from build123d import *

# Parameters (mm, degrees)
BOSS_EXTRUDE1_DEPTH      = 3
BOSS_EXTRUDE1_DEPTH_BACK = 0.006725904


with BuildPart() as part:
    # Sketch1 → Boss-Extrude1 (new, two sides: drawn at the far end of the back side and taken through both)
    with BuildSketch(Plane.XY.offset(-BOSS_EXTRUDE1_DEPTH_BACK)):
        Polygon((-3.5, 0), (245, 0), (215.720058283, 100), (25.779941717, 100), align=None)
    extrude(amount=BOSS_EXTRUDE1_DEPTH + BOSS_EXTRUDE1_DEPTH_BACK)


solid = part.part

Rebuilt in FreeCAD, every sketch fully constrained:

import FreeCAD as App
import Part
import Sketcher
from FreeCAD import Vector
Q = App.Units.Quantity


def add_polygon(sketch, points):
    """Adds a closed chain of lines whose ends are joined by coincident constraints."""
    first, n = sketch.GeometryCount, len(points)
    for a, b in zip(points, points[1:] + points[:1]):
        sketch.addGeometry(Part.LineSegment(App.Vector(*a, 0), App.Vector(*b, 0)), False)
    for i in range(n):
        sketch.addConstraint(Sketcher.Constraint("Coincident", first + i, 2, first + (i + 1) % n, 1))

doc = App.newDocument("Part")
body = doc.addObject("PartDesign::Body", "Body")

sketch1 = body.newObject("Sketcher::SketchObject", "Sketch")
sketch1.AttachmentSupport = (doc.getObject("XY_Plane"), [""])
sketch1.MapMode = "FlatFace"
add_polygon(sketch1, [(-4, 0), (245, 0), (216, 100), (26, 100)])
sketch1.addConstraint([
    Sketcher.Constraint("Horizontal", 0),
    Sketcher.Constraint("Horizontal", 2),
    Sketcher.Constraint("PointOnObject", 0, 2, -1),
    Sketcher.Constraint("Equal", 1, 3),
    Sketcher.Constraint("DistanceX", 0, 1, 0, 2, Q("248.5 mm")),
    Sketcher.Constraint("DistanceX", -1, 1, 0, 2, Q("245 mm")),
    Sketcher.Constraint("DistanceY", -1, 1, 1, 2, Q("100 mm")),
    Sketcher.Constraint("Angle", 1, Q("106.32 deg")),
])
pad1 = body.newObject("PartDesign::Pad", "Pad")
pad1.Profile = sketch1
pad1.Type = "TwoLengths"
pad1.Length = 3
pad1.Length2 = 0.006726

doc.recompute()
